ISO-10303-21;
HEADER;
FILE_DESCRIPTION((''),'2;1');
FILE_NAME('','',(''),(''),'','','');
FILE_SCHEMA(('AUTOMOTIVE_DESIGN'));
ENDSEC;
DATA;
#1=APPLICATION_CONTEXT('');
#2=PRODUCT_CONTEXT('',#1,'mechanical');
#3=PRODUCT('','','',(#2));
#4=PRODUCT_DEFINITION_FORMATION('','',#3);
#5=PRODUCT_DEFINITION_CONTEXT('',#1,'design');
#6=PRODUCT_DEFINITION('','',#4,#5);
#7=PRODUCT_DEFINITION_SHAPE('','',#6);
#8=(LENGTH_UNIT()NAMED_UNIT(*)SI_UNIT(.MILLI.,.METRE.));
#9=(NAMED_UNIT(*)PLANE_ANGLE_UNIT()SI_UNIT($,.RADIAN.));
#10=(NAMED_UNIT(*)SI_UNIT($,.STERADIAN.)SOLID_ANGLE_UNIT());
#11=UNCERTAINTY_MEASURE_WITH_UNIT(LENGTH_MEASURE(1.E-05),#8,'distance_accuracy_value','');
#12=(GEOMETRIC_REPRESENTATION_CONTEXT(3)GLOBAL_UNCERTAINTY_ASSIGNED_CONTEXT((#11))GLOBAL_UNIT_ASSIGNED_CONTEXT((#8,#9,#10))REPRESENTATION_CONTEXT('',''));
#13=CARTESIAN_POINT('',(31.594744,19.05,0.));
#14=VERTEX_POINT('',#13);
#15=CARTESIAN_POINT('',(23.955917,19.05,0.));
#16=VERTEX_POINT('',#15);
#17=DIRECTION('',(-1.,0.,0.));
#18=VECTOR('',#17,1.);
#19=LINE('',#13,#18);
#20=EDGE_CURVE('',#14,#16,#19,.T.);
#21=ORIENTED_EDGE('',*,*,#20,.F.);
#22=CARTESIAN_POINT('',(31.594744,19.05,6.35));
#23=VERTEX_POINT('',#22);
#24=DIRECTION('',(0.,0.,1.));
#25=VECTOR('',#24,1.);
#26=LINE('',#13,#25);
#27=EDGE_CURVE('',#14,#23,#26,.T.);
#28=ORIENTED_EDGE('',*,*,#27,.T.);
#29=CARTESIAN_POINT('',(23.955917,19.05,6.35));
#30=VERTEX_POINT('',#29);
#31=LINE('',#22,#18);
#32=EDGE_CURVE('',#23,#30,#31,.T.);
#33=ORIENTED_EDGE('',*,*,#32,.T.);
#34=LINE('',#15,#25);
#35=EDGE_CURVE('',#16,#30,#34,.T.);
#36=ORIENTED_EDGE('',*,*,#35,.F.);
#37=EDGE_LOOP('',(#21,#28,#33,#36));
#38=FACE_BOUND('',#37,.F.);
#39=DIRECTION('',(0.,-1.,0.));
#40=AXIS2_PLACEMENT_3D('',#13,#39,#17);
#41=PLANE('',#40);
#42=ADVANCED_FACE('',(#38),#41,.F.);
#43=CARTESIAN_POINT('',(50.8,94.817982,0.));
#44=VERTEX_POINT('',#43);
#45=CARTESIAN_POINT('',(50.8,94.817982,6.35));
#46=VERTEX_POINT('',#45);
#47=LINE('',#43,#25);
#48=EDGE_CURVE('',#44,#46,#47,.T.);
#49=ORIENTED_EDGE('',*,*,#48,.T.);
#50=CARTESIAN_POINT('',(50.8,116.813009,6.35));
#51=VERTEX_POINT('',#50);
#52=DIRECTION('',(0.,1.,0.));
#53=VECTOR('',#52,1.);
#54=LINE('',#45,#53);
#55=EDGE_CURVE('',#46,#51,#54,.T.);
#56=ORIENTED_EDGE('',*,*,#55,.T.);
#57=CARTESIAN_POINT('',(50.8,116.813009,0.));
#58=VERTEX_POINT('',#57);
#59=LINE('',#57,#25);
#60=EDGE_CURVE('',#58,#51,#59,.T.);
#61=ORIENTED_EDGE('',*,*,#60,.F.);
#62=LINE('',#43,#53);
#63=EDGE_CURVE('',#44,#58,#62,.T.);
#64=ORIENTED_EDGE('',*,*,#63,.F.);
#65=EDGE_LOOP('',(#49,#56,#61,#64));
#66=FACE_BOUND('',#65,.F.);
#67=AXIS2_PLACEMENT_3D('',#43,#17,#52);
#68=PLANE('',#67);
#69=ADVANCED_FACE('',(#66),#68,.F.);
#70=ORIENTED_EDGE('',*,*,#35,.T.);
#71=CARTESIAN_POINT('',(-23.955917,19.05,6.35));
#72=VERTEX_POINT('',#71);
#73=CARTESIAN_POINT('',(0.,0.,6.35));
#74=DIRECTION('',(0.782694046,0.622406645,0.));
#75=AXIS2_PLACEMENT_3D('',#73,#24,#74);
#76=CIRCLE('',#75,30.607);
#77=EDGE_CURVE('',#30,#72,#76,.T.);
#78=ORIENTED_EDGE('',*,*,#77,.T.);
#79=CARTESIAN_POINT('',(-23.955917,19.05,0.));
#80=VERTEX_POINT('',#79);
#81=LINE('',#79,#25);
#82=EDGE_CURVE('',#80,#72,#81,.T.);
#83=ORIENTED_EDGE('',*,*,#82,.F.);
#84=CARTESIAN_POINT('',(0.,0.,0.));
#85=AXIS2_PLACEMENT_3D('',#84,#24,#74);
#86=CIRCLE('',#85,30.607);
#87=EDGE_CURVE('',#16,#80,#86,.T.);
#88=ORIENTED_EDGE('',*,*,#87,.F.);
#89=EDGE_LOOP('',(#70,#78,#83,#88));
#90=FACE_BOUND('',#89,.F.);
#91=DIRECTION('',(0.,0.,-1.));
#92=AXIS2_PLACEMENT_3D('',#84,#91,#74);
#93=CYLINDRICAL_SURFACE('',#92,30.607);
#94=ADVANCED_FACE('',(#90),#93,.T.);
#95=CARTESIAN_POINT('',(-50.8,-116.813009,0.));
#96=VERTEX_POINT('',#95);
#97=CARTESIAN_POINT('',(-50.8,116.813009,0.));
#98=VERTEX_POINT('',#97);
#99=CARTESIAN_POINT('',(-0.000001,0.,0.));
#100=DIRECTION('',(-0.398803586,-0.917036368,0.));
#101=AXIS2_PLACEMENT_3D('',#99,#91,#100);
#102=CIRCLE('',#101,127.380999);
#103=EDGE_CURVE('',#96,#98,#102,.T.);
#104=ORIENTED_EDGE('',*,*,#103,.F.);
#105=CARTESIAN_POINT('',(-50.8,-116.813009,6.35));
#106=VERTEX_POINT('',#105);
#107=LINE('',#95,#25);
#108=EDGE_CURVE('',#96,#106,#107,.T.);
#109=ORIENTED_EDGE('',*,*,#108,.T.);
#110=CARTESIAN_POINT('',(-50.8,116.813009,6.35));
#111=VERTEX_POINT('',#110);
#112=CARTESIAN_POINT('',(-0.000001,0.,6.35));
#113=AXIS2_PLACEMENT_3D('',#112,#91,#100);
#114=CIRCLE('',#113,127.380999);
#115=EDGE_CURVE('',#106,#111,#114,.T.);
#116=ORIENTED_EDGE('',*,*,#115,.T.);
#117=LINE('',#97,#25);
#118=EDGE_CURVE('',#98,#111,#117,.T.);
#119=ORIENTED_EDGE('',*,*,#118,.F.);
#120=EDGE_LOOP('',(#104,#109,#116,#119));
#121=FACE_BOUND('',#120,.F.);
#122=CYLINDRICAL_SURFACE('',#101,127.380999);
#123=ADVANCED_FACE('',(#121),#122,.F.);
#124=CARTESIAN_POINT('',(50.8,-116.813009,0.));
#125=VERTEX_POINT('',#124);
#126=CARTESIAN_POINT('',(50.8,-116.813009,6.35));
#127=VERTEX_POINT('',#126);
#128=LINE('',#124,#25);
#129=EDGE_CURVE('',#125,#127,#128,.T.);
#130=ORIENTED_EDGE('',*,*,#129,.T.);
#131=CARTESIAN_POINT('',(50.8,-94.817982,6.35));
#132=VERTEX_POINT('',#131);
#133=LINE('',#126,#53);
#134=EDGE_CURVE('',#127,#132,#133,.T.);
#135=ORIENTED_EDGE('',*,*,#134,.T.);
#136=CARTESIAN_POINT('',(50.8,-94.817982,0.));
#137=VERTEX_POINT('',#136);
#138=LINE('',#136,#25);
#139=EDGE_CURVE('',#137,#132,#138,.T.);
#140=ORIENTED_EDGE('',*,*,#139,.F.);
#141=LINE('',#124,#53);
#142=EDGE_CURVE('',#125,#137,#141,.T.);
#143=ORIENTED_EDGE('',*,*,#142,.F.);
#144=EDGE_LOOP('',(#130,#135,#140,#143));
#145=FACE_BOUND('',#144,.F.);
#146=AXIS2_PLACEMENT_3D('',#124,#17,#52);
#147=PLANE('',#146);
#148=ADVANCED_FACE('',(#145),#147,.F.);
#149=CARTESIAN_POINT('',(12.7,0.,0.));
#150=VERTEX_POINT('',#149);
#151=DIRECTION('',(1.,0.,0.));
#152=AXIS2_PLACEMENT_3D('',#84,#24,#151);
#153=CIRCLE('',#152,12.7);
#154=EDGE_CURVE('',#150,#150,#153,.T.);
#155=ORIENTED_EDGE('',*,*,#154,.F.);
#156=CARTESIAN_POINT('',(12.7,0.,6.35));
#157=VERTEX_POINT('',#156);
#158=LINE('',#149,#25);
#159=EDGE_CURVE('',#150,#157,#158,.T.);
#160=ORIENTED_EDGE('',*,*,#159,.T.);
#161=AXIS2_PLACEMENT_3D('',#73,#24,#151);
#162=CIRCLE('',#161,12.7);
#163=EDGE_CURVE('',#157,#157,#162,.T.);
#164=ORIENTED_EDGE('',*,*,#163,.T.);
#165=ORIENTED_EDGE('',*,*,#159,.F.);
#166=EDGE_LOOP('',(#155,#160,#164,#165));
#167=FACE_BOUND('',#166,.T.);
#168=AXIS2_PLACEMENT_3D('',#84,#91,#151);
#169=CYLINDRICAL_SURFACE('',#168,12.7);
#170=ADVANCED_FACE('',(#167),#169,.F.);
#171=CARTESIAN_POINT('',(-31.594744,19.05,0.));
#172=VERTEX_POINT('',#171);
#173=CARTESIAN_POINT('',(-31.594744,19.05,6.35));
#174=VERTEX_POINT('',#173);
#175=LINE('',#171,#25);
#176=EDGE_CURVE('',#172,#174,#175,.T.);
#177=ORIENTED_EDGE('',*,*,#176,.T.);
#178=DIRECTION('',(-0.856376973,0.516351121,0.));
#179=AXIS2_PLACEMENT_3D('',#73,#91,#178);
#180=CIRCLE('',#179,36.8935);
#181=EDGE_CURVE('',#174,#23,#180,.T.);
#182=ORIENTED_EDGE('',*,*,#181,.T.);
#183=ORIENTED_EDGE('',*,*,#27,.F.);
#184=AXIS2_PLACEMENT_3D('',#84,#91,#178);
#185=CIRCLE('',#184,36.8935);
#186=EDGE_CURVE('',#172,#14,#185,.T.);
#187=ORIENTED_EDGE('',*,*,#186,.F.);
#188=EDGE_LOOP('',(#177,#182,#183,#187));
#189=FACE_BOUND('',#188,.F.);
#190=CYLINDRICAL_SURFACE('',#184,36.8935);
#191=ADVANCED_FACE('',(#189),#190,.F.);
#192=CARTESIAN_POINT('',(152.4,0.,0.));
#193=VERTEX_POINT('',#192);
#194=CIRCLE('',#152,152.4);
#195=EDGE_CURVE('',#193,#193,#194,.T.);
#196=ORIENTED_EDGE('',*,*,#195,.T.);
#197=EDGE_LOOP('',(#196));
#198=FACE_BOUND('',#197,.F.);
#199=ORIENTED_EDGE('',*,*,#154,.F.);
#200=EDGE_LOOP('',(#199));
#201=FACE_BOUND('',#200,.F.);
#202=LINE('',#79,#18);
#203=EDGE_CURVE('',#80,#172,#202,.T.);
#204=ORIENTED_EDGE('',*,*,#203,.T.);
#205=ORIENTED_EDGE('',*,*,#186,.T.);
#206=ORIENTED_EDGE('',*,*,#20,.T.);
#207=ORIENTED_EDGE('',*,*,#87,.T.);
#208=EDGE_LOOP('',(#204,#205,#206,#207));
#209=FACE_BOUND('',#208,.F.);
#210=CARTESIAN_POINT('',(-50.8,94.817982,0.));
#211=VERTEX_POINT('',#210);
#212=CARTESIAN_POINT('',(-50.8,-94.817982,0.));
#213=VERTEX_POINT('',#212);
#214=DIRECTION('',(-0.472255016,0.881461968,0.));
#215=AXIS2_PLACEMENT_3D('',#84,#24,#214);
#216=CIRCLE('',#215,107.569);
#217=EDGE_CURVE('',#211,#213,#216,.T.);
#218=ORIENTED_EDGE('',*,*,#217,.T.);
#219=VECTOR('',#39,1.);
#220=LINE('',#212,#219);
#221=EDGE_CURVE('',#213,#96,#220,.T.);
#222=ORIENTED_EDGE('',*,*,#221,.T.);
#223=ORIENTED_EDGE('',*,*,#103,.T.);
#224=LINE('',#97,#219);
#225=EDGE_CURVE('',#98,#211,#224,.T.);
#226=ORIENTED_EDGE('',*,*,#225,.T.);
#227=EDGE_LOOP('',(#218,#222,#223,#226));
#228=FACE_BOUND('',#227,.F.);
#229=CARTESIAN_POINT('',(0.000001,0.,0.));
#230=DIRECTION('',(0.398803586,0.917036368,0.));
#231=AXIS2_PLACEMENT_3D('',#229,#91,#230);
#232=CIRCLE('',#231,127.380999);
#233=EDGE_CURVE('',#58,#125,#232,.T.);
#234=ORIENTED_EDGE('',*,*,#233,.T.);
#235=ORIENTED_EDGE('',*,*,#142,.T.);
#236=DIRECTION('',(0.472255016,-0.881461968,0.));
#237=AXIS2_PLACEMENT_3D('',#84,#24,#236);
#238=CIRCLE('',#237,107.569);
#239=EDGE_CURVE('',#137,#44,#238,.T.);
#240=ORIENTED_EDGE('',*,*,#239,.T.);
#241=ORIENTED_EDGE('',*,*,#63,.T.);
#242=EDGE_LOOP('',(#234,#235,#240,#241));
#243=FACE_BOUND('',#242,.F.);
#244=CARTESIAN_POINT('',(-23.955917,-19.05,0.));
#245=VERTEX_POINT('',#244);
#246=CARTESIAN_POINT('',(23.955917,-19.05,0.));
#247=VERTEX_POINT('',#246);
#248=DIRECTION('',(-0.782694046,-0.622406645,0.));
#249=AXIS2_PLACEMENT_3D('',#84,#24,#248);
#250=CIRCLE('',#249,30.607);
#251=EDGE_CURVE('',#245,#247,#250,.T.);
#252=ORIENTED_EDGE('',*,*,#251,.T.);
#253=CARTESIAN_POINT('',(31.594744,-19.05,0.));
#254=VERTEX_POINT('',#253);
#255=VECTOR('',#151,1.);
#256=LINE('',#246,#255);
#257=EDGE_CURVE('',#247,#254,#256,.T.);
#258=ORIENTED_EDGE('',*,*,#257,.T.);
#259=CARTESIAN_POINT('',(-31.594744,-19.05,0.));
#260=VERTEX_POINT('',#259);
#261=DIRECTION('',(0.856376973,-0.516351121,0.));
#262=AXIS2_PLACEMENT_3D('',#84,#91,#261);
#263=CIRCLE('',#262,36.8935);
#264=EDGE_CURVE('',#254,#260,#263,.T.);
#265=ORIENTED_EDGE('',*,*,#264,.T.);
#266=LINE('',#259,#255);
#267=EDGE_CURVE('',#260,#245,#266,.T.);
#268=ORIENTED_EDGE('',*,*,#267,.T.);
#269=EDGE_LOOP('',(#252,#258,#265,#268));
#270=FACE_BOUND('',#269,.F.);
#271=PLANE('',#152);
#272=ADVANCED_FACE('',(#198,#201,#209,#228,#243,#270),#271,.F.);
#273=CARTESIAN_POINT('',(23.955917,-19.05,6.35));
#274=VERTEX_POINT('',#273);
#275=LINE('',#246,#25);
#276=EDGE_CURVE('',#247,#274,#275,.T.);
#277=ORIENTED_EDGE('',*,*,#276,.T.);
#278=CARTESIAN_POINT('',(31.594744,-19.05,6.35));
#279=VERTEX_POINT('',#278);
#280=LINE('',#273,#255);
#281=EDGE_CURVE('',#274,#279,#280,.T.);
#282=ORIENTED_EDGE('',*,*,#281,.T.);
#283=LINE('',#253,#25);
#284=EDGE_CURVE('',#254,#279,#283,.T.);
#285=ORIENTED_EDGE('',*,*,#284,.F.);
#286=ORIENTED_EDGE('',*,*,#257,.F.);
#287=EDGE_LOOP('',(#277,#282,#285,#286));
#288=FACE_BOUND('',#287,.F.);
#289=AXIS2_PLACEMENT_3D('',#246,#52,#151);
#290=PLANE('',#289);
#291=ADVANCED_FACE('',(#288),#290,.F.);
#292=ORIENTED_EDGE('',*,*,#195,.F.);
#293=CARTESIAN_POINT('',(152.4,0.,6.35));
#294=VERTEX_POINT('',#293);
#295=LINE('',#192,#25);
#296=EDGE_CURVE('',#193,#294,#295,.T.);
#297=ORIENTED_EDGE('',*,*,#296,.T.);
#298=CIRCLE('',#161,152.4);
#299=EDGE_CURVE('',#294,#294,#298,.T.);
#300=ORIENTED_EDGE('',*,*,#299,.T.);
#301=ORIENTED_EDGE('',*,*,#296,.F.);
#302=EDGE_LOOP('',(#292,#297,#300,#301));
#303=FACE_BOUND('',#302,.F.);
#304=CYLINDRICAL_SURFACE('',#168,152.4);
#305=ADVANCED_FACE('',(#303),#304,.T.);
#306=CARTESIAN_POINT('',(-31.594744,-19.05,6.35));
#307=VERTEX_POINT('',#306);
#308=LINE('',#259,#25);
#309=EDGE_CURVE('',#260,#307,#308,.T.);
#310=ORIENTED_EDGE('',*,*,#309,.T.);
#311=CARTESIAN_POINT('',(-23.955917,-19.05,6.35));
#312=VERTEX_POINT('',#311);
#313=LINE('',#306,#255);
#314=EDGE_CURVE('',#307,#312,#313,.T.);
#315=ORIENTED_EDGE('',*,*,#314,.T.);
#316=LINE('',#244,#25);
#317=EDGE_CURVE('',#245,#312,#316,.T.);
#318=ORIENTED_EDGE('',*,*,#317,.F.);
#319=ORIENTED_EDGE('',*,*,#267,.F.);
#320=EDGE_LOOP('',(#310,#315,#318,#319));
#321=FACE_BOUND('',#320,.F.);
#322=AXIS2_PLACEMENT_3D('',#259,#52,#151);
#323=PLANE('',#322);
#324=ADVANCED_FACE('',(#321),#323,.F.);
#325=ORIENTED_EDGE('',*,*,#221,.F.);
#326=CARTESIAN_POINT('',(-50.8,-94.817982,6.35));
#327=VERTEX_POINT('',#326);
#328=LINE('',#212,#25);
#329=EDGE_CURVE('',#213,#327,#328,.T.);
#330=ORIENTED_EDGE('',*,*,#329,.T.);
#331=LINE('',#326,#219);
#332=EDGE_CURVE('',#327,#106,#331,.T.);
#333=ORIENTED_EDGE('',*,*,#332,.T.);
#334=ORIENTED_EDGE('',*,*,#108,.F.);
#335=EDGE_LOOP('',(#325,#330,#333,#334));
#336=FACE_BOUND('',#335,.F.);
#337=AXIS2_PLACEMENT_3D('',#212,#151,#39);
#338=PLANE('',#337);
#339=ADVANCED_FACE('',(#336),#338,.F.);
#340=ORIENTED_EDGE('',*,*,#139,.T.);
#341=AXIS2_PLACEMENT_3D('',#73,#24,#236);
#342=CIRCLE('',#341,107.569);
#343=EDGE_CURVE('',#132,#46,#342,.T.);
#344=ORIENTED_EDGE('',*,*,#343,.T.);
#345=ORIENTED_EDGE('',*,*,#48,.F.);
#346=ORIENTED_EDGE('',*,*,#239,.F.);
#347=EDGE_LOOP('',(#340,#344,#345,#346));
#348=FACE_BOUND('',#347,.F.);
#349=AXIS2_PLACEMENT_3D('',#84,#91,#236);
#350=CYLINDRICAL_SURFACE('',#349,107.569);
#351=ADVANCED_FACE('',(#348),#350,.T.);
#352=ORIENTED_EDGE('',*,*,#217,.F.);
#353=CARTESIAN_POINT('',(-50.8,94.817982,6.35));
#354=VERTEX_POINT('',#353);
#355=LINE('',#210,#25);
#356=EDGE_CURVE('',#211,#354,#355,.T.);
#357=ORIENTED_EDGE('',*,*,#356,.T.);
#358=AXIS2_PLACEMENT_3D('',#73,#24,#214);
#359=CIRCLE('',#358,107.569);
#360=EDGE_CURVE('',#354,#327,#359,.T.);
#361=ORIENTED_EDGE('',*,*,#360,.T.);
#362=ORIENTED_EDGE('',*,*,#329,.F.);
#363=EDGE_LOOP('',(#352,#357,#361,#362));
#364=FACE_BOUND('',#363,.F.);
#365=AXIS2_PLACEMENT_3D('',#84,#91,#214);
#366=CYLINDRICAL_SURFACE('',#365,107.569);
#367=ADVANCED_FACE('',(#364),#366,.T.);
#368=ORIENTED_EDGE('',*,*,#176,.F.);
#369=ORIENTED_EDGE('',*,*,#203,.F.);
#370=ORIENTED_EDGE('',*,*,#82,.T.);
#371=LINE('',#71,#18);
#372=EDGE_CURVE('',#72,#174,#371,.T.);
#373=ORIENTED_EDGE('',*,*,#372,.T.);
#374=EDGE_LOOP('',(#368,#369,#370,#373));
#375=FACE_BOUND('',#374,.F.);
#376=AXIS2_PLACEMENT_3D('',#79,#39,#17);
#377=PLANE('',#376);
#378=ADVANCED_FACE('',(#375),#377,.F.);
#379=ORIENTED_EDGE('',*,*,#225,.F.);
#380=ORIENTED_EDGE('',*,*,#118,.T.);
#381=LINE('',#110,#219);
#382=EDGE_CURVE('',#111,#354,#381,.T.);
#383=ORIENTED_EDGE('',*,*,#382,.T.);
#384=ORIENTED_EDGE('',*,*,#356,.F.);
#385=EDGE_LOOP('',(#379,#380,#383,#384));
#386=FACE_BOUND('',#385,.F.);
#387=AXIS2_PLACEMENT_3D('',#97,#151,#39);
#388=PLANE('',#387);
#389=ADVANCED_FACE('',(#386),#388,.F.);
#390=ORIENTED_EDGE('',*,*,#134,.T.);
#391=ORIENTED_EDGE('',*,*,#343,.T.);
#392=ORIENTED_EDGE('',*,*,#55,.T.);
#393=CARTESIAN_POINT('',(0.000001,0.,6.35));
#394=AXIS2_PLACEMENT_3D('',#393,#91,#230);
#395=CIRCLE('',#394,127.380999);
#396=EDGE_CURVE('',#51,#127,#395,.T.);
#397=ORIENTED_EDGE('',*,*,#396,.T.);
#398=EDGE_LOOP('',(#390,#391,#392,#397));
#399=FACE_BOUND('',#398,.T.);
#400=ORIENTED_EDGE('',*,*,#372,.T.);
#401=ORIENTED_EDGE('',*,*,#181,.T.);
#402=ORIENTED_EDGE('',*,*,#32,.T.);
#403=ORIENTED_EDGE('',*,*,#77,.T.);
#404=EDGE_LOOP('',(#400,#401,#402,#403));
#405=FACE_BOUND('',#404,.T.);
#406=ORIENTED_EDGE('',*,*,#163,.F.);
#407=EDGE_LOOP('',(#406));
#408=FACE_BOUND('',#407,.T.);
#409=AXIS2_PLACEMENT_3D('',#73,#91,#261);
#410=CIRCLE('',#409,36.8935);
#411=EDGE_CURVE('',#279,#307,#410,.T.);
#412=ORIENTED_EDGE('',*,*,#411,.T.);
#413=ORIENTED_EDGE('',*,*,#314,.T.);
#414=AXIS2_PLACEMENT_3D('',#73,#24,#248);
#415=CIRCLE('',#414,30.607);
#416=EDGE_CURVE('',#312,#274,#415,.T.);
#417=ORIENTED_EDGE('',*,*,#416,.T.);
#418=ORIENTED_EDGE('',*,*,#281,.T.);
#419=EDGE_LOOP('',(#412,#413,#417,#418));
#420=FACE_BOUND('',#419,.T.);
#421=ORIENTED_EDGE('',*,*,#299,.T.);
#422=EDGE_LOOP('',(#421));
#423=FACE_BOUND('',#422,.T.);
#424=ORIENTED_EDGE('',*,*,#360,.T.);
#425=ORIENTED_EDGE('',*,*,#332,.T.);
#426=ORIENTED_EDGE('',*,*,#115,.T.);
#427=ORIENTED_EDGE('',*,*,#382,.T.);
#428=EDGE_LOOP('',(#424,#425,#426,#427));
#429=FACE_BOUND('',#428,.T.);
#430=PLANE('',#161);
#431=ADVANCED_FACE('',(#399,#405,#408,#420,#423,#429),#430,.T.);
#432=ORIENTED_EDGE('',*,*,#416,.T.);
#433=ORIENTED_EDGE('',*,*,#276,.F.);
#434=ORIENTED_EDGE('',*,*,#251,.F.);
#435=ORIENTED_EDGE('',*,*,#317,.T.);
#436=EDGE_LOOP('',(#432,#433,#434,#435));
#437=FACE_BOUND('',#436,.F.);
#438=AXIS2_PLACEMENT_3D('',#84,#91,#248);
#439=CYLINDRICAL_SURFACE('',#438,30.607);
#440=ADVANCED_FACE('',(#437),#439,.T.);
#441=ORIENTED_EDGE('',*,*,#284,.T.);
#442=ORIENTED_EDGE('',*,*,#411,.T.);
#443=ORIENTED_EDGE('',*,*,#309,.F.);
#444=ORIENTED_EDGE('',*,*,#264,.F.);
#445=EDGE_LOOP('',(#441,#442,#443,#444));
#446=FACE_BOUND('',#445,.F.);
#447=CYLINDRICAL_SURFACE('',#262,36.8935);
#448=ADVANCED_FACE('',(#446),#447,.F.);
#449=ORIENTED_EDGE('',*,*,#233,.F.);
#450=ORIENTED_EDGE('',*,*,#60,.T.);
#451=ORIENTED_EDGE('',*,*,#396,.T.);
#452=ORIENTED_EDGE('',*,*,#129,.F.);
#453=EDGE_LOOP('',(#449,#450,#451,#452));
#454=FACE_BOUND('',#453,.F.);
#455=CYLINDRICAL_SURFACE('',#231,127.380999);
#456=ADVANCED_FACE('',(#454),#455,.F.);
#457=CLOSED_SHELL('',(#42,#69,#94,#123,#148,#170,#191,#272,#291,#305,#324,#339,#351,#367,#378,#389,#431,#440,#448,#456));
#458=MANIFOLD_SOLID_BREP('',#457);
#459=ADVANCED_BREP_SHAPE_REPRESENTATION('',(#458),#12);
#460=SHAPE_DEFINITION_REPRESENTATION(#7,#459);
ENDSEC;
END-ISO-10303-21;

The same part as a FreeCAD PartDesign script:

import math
import FreeCAD as App
import Part
import Sketcher
from FreeCAD import Vector
Q = App.Units.Quantity

doc = App.newDocument("Part")
body = doc.addObject("PartDesign::Body", "Body")

# Sketch on XY plane
sketch1 = body.newObject("Sketcher::SketchObject", "Sketch")
sketch1.AttachmentSupport = (doc.getObject("XY_Plane"), [""])
sketch1.MapMode = "FlatFace"
sketch1.addGeometry([
    Part.Circle(Vector(0, 0, 0), Vector(0, 0, 1), 152.4),  # 0
    Part.LineSegment(Vector(23.955917, -19.05, 0), Vector(31.594744, -19.05, 0)),  # 1
    Part.ArcOfCircle(Part.Circle(Vector(0, 0, 0), Vector(0, 0, 1), 36.8935), math.radians(-148.912191), math.radians(-31.087809)),  # 2
    Part.LineSegment(Vector(-31.594744, -19.05, 0), Vector(-23.955917, -19.05, 0)),  # 3
    Part.ArcOfCircle(Part.Circle(Vector(0, 0, 0), Vector(0, 0, 1), 30.607), math.radians(-141.507906), math.radians(-38.492094)),  # 4
    Part.LineSegment(Vector(-50.8, -94.817982, 0), Vector(-50.8, -116.813009, 0)),  # 5
    Part.ArcOfCircle(Part.Circle(Vector(-0.000001, 0, 0), Vector(0, 0, 1), 127.380999), math.radians(113.503406), math.radians(246.496594)),  # 6
    Part.LineSegment(Vector(-50.8, 116.813009, 0), Vector(-50.8, 94.817982, 0)),  # 7
    Part.ArcOfCircle(Part.Circle(Vector(0, 0, 0), Vector(0, 0, 1), 107.569), math.radians(118.180774), math.radians(241.819226)),  # 8
    Part.Circle(Vector(0, 0, 0), Vector(0, 0, 1), 12.7),  # 9
    Part.ArcOfCircle(Part.Circle(Vector(0, 0, 0), Vector(0, 0, 1), 30.607), math.radians(38.492094), math.radians(141.507906)),  # 10
    Part.LineSegment(Vector(-23.955917, 19.05, 0), Vector(-31.594744, 19.05, 0)),  # 11
    Part.ArcOfCircle(Part.Circle(Vector(0, 0, 0), Vector(0, 0, 1), 36.8935), math.radians(31.087809), math.radians(148.912191)),  # 12
    Part.LineSegment(Vector(31.594744, 19.05, 0), Vector(23.955917, 19.05, 0)),  # 13
    Part.ArcOfCircle(Part.Circle(Vector(0, 0, 0), Vector(0, 0, 1), 107.569), math.radians(-61.819226), math.radians(61.819226)),  # 14
    Part.LineSegment(Vector(50.8, 94.817982, 0), Vector(50.8, 116.813009, 0)),  # 15
    Part.ArcOfCircle(Part.Circle(Vector(0.000001, 0, 0), Vector(0, 0, 1), 127.380999), math.radians(-66.496594), math.radians(66.496594)),  # 16
    Part.LineSegment(Vector(50.8, -116.813009, 0), Vector(50.8, -94.817982, 0)),  # 17
], False)
sketch1.addConstraint([
    Sketcher.Constraint("Coincident", 1, 2, 2, 2),
    Sketcher.Constraint("Coincident", 2, 1, 3, 1),
    Sketcher.Constraint("Coincident", 3, 2, 4, 1),
    Sketcher.Constraint("Coincident", 4, 2, 1, 1),
    Sketcher.Constraint("Coincident", 5, 2, 6, 2),
    Sketcher.Constraint("Coincident", 6, 1, 7, 1),
    Sketcher.Constraint("Coincident", 7, 2, 8, 1),
    Sketcher.Constraint("Coincident", 8, 2, 5, 1),
    Sketcher.Constraint("Coincident", 10, 2, 11, 1),
    Sketcher.Constraint("Coincident", 11, 2, 12, 2),
    Sketcher.Constraint("Coincident", 12, 1, 13, 1),
    Sketcher.Constraint("Coincident", 13, 2, 10, 1),
    Sketcher.Constraint("Coincident", 14, 2, 15, 1),
    Sketcher.Constraint("Coincident", 15, 2, 16, 2),
    Sketcher.Constraint("Coincident", 16, 1, 17, 1),
    Sketcher.Constraint("Coincident", 17, 2, 14, 1),
    Sketcher.Constraint("Horizontal", 1),
    Sketcher.Constraint("Horizontal", 3),
    Sketcher.Constraint("Vertical", 5),
    Sketcher.Constraint("Vertical", 7),
    Sketcher.Constraint("Horizontal", 11),
    Sketcher.Constraint("Horizontal", 13),
    Sketcher.Constraint("Vertical", 15),
    Sketcher.Constraint("Vertical", 17),
    Sketcher.Constraint("Coincident", 0, 3, -1, 1),
    Sketcher.Constraint("Coincident", 2, 3, -1, 1),
    Sketcher.Constraint("Coincident", 4, 3, -1, 1),
    Sketcher.Constraint("Coincident", 6, 3, -1, 1),
    Sketcher.Constraint("Coincident", 8, 3, -1, 1),
    Sketcher.Constraint("Coincident", 9, 3, -1, 1),
    Sketcher.Constraint("Coincident", 10, 3, -1, 1),
    Sketcher.Constraint("Coincident", 12, 3, -1, 1),
    Sketcher.Constraint("Coincident", 14, 3, -1, 1),
    Sketcher.Constraint("Coincident", 16, 3, -1, 1),
    Sketcher.Constraint("Equal", 4, 10),
    Sketcher.Constraint("Equal", 2, 12),
    Sketcher.Constraint("Equal", 8, 14),
    Sketcher.Constraint("Equal", 6, 16),
    Sketcher.Constraint("Horizontal", 1, 2, 2, 1),
    Sketcher.Constraint("Horizontal", 11, 2, 12, 1),
    Sketcher.Constraint("Horizontal", 7, 2, 14, 2),
    Sketcher.Constraint("Horizontal", 5, 2, 16, 1),
    Sketcher.Constraint("Vertical", 5, 2, 6, 1),
    Sketcher.Constraint("Vertical", 3, 2, 10, 2),
    Sketcher.Constraint("Diameter", 0, Q("12 in")),
    Sketcher.Constraint("Diameter", 9, Q("1 in")),
    Sketcher.Constraint("DistanceX", 5, 2, -1, 1, Q("2 in")),
    Sketcher.Constraint("Radius", 4, Q("1.205 in")),
    Sketcher.Constraint("Radius", 6, Q("5.015 in")),
    Sketcher.Constraint("Radius", 8, Q("4.235 in")),
    Sketcher.Constraint("Radius", 2, Q("1.4525 in")),
    Sketcher.Constraint("DistanceY", 1, 2, -1, 1, Q("0.75 in")),
])
pad1 = body.newObject("PartDesign::Pad", "Pad")
pad1.Profile = sketch1
pad1.Length = Q("0.25 in")

doc.recompute()
